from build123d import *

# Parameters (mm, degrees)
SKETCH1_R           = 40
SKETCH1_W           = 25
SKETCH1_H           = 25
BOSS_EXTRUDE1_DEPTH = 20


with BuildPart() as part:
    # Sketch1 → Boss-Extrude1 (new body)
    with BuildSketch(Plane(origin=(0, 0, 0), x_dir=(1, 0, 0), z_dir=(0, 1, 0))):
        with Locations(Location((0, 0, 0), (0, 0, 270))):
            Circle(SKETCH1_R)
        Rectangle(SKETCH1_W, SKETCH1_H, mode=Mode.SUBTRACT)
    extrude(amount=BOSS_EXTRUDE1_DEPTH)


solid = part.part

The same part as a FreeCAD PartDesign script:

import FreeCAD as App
import Part
import Sketcher
Q = App.Units.Quantity


def add_polygon(sketch, points):
    """Adds a closed chain of lines whose ends are joined by coincident constraints."""
    first, n = sketch.GeometryCount, len(points)
    for a, b in zip(points, points[1:] + points[:1]):
        sketch.addGeometry(Part.LineSegment(App.Vector(*a, 0), App.Vector(*b, 0)), False)
    for i in range(n):
        sketch.addConstraint(Sketcher.Constraint("Coincident", first + i, 2, first + (i + 1) % n, 1))

doc = App.newDocument("Part")
params = doc.addObject("Spreadsheet::Sheet", "Params")
for row, (alias, value) in enumerate([
    ("sketch1_diameter", "80 mm"),
    ("sketch1_width", "25 mm"),
    ("pad1_length", "20 mm"),
], start=1):
    params.set(f"A{row}", alias)
    params.set(f"B{row}", "=" + value)
    params.setAlias(f"B{row}", alias)

body = doc.addObject("PartDesign::Body", "Body")

# Sketch on XZ plane
sketch1 = body.newObject("Sketcher::SketchObject", "Sketch")
sketch1.AttachmentSupport = (doc.getObject("XZ_Plane"), [""])
sketch1.MapMode = "FlatFace"
sketch1.addGeometry(Part.Circle(App.Vector(0, 0, 0), App.Vector(0, 0, 1), 40), False)  # 0
add_polygon(sketch1, [(12, 12), (-12, 12), (-12, -12), (12, -12)])  # lines 1-4
sketch1.addConstraint(Sketcher.Constraint("Horizontal", 1))
sketch1.addConstraint(Sketcher.Constraint("Vertical", 2))
sketch1.addConstraint(Sketcher.Constraint("Horizontal", 3))
sketch1.addConstraint(Sketcher.Constraint("Vertical", 4))
sketch1.addConstraint(Sketcher.Constraint("Coincident", 0, 3, -1, 1))
sketch1.addConstraint(Sketcher.Constraint("Symmetric", 1, 2, 3, 2, -1, 1))
sketch1.addConstraint(Sketcher.Constraint("Equal", 3, 2))
sketch1.addConstraint(Sketcher.Constraint("Diameter", 0, Q("80 mm")))
sketch1.addConstraint(Sketcher.Constraint("DistanceX", 1, 2, 1, 1, Q("25 mm")))
sketch1.setExpression("Constraints[11]", "Params.sketch1_diameter")
sketch1.setExpression("Constraints[12]", "Params.sketch1_width")
pad1 = body.newObject("PartDesign::Pad", "Pad")
pad1.Profile = sketch1
pad1.setExpression("Length", "Params.pad1_length")
pad1.Reversed = True

doc.recompute()
